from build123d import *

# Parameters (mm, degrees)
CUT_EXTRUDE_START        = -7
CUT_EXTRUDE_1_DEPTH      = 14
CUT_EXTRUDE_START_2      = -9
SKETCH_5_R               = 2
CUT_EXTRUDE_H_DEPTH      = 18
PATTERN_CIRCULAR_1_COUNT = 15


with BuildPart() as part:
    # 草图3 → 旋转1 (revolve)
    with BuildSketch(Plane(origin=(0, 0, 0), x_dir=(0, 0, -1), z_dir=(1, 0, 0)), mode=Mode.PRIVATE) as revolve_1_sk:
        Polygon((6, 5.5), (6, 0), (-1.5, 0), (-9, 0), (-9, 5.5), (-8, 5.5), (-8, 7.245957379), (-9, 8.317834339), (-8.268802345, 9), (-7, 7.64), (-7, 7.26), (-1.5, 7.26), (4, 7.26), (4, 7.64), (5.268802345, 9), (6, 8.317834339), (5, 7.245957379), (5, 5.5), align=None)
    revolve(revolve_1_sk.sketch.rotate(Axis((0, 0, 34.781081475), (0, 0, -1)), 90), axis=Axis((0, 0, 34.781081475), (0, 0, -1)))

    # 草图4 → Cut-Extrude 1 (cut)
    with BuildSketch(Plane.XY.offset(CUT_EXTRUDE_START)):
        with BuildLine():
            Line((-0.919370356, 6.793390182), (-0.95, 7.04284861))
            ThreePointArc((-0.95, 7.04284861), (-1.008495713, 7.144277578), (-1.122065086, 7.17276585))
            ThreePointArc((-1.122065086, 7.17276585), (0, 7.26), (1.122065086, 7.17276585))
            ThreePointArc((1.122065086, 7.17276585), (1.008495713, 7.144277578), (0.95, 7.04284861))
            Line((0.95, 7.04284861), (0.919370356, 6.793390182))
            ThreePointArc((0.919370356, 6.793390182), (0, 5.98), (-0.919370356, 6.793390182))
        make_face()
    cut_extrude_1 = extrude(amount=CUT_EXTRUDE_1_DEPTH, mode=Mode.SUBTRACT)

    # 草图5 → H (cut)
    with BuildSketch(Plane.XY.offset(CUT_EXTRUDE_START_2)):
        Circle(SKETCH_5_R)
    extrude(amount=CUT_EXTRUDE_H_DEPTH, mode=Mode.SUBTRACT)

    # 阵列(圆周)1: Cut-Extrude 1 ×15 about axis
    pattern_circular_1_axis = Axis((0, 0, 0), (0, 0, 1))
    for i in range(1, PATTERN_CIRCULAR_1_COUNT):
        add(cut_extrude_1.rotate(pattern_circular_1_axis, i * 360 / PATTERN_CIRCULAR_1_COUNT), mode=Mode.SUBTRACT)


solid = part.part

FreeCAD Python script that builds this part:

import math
import FreeCAD as App
import Part
import Sketcher
Q = App.Units.Quantity

doc = App.newDocument("Part")
params = doc.addObject("Spreadsheet::Sheet", "Params")
for row, (alias, value) in enumerate([
    ("sketch1_height", "1 mm"),
    ("sketch1_height2", "11 mm"),
    ("sketch1_height3", "15 mm"),
    ("sketch1_length", "1 mm"),
    ("sketch1_width", "5.5 mm"),
    ("revolution_angle", "360 deg"),
    ("sketch2_radius", "0.15 mm"),
    ("sketch2_radius2", "7.26 mm"),
    ("pocket1_length", "14 mm"),
    ("sketch3_diameter", "4 mm"),
    ("pocket2_length", "18 mm"),
], start=1):
    params.set(f"A{row}", alias)
    params.set(f"B{row}", "=" + value)
    params.setAlias(f"B{row}", alias)

body = doc.addObject("PartDesign::Body", "Body")

sketch1 = doc.addObject("Sketcher::SketchObject", "Sketch")
body.addObject(sketch1)
sketch1.AttachmentSupport = (doc.YZ_Plane, [""])
sketch1.MapMode = "FlatFace"
sketch1.addGeometry([
    Part.LineSegment(App.Vector(0, -6, 0), App.Vector(5.5, -6, 0)),
    Part.LineSegment(App.Vector(5.5, -6, 0), App.Vector(5.5, -5, 0)),
    Part.LineSegment(App.Vector(5.5, -5, 0), App.Vector(7.25, -5, 0)),
    Part.LineSegment(App.Vector(7.25, -5, 0), App.Vector(8.32, -6, 0)),
    Part.LineSegment(App.Vector(8.32, -6, 0), App.Vector(9, -5.27, 0)),
    Part.LineSegment(App.Vector(9, -5.27, 0), App.Vector(7.64, -4, 0)),
    Part.LineSegment(App.Vector(7.64, -4, 0), App.Vector(7.26, -4, 0)),
    Part.LineSegment(App.Vector(7.26, -4, 0), App.Vector(7.26, 7, 0)),
    Part.LineSegment(App.Vector(7.26, 7, 0), App.Vector(7.64, 7, 0)),
    Part.LineSegment(App.Vector(7.64, 7, 0), App.Vector(9, 8.27, 0)),
    Part.LineSegment(App.Vector(9, 8.27, 0), App.Vector(8.32, 9, 0)),
    Part.LineSegment(App.Vector(8.32, 9, 0), App.Vector(7.25, 8, 0)),
    Part.LineSegment(App.Vector(7.25, 8, 0), App.Vector(5.5, 8, 0)),
    Part.LineSegment(App.Vector(5.5, 8, 0), App.Vector(5.5, 9, 0)),
    Part.LineSegment(App.Vector(5.5, 9, 0), App.Vector(0, 9, 0)),
    Part.LineSegment(App.Vector(0, 9, 0), App.Vector(0, -6, 0)),
], False)
sketch1.addConstraint([
    Sketcher.Constraint("Coincident", 0, 2, 1, 1),
    Sketcher.Constraint("Coincident", 1, 2, 2, 1),
    Sketcher.Constraint("Coincident", 2, 2, 3, 1),
    Sketcher.Constraint("Coincident", 3, 2, 4, 1),
    Sketcher.Constraint("Coincident", 4, 2, 5, 1),
    Sketcher.Constraint("Coincident", 5, 2, 6, 1),
    Sketcher.Constraint("Coincident", 6, 2, 7, 1),
    Sketcher.Constraint("Coincident", 7, 2, 8, 1),
    Sketcher.Constraint("Coincident", 8, 2, 9, 1),
    Sketcher.Constraint("Coincident", 9, 2, 10, 1),
    Sketcher.Constraint("Coincident", 10, 2, 11, 1),
    Sketcher.Constraint("Coincident", 11, 2, 12, 1),
    Sketcher.Constraint("Coincident", 12, 2, 13, 1),
    Sketcher.Constraint("Coincident", 13, 2, 14, 1),
    Sketcher.Constraint("Coincident", 14, 2, 15, 1),
    Sketcher.Constraint("Coincident", 15, 2, 0, 1),
    Sketcher.Constraint("Horizontal", 0),
    Sketcher.Constraint("Vertical", 1),
    Sketcher.Constraint("Horizontal", 2),
    Sketcher.Constraint("Horizontal", 6),
    Sketcher.Constraint("Vertical", 7),
    Sketcher.Constraint("Horizontal", 8),
    Sketcher.Constraint("Horizontal", 12),
    Sketcher.Constraint("Vertical", 13),
    Sketcher.Constraint("Horizontal", 14),
    Sketcher.Constraint("Vertical", 15),
    Sketcher.Constraint("PointOnObject", 14, 2, -2),
    Sketcher.Constraint("Perpendicular", 3, 4),
    Sketcher.Constraint("Perpendicular", 4, 5),
    Sketcher.Constraint("Perpendicular", 9, 10),
    Sketcher.Constraint("Perpendicular", 10, 11),
    Sketcher.Constraint("Horizontal", 0, 2, 3, 2),
    Sketcher.Constraint("Horizontal", 10, 2, 13, 2),
    Sketcher.Constraint("Vertical", 5, 2, 8, 2),
    Sketcher.Constraint("Vertical", 4, 2, 9, 2),
    Sketcher.Constraint("Vertical", 3, 2, 10, 2),
    Sketcher.Constraint("Vertical", 2, 2, 11, 2),
    Sketcher.Constraint("Vertical", 1, 2, 12, 2),
    Sketcher.Constraint("Equal", 1, 13),
    Sketcher.Constraint("DistanceY", 1, 1, 1, 2, 1.0),
    Sketcher.Constraint("DistanceY", 7, 1, 7, 2, 11.0),
    Sketcher.Constraint("DistanceY", 15, 2, 15, 1, 15.0),
    Sketcher.Constraint("Distance", 4, 1.0),
    Sketcher.Constraint("DistanceX", 0, 1, 0, 2, 5.5),
    Sketcher.Constraint("DistanceY", 0, 2, -1, 1, 6.0),
    Sketcher.Constraint("DistanceX", -1, 1, 4, 2, 9.0),
    Sketcher.Constraint("DistanceX", 6, 2, 6, 1, 0.38),
    Sketcher.Constraint("DistanceX", -1, 1, 5, 2, 7.64),
])
sketch1.setExpression("Constraints[39]", "Params.sketch1_height")
sketch1.setExpression("Constraints[40]", "Params.sketch1_height2")
sketch1.setExpression("Constraints[41]", "Params.sketch1_height3")
sketch1.setExpression("Constraints[42]", "Params.sketch1_length")
sketch1.setExpression("Constraints[43]", "Params.sketch1_width")
revolution = doc.addObject("PartDesign::Revolution", "Revolution")
body.addObject(revolution)
revolution.Profile = sketch1
revolution.ReferenceAxis = (sketch1, ["V_Axis"])
revolution.setExpression("Angle", "Params.revolution_angle")

sketch2 = doc.addObject("Sketcher::SketchObject", "Sketch001")
body.addObject(sketch2)
sketch2.AttachmentSupport = (doc.XY_Plane, [""])
sketch2.MapMode = "FlatFace"
sketch2.AttachmentOffset = App.Placement(App.Vector(0, 0, -7), App.Rotation())
sketch2.addGeometry([
    Part.LineSegment(App.Vector(-0.95, 7.04, 0), App.Vector(-0.92, 6.79, 0)),
    Part.ArcOfCircle(Part.Circle(App.Vector(0, 6.91, 0), App.Vector(0, 0, 1), 0.93), math.radians(-173), math.radians(-7)),
    Part.LineSegment(App.Vector(0.92, 6.79, 0), App.Vector(0.95, 7.04, 0)),
    Part.ArcOfCircle(Part.Circle(App.Vector(1.1, 7.02, 0), App.Vector(0, 0, 1), 0.15), math.radians(81), math.radians(173)),
    Part.ArcOfCircle(Part.Circle(App.Vector(0, 0, 0), App.Vector(0, 0, 1), 7.26), math.radians(81.11), math.radians(98.89)),
    Part.ArcOfCircle(Part.Circle(App.Vector(-1.1, 7.02, 0), App.Vector(0, 0, 1), 0.15), math.radians(7), math.radians(99)),
], False)
sketch2.addConstraint([
    Sketcher.Constraint("Tangent", 0, 2, 1, 1),
    Sketcher.Constraint("Tangent", 1, 2, 2, 1),
    Sketcher.Constraint("Tangent", 2, 2, 3, 2),
    Sketcher.Constraint("Tangent", 3, 1, 4, 1),
    Sketcher.Constraint("Tangent", 4, 2, 5, 2),
    Sketcher.Constraint("Tangent", 5, 1, 0, 1),
    Sketcher.Constraint("Coincident", 4, 3, -1, 1),
    Sketcher.Constraint("Equal", 3, 5),
    Sketcher.Constraint("Symmetric", 0, 2, 1, 2, -2),
    Sketcher.Constraint("Angle", 0, Q("-83 deg")),
    Sketcher.Constraint("Radius", 3, 0.15),
    Sketcher.Constraint("Radius", 4, 7.26),
    Sketcher.Constraint("DistanceX", -1, 1, 2, 2, 0.95),
    Sketcher.Constraint("Radius", 1, 0.926275),
])
sketch2.setExpression("Constraints[10]", "Params.sketch2_radius")
sketch2.setExpression("Constraints[11]", "Params.sketch2_radius2")
pocket1 = doc.addObject("PartDesign::Pocket", "Pocket")
body.addObject(pocket1)
pocket1.Profile = sketch2
pocket1.setExpression("Length", "Params.pocket1_length")
pocket1.Reversed = True

sketch3 = doc.addObject("Sketcher::SketchObject", "Sketch002")
body.addObject(sketch3)
sketch3.AttachmentSupport = (doc.XY_Plane, [""])
sketch3.MapMode = "FlatFace"
sketch3.AttachmentOffset = App.Placement(App.Vector(0, 0, -9), App.Rotation())
sketch3.addGeometry(Part.Circle(App.Vector(0, 0, 0), App.Vector(0, 0, 1), 2), False)
sketch3.addConstraint([
    Sketcher.Constraint("Coincident", 0, 3, -1, 1),
    Sketcher.Constraint("Diameter", 0, 4.0),
])
sketch3.setExpression("Constraints[1]", "Params.sketch3_diameter")
pocket2 = doc.addObject("PartDesign::Pocket", "Pocket001")
body.addObject(pocket2)
pocket2.Profile = sketch3
pocket2.setExpression("Length", "Params.pocket2_length")
pocket2.Reversed = True
doc.recompute()

polarpattern = doc.addObject("PartDesign::PolarPattern", "PolarPattern")
body.addObject(polarpattern)
polarpattern.Originals = [pocket1]
polarpattern.Axis = (doc.Z_Axis, [""])
polarpattern.Angle = 360
polarpattern.Occurrences = 15
body.Tip = polarpattern

doc.recompute()
